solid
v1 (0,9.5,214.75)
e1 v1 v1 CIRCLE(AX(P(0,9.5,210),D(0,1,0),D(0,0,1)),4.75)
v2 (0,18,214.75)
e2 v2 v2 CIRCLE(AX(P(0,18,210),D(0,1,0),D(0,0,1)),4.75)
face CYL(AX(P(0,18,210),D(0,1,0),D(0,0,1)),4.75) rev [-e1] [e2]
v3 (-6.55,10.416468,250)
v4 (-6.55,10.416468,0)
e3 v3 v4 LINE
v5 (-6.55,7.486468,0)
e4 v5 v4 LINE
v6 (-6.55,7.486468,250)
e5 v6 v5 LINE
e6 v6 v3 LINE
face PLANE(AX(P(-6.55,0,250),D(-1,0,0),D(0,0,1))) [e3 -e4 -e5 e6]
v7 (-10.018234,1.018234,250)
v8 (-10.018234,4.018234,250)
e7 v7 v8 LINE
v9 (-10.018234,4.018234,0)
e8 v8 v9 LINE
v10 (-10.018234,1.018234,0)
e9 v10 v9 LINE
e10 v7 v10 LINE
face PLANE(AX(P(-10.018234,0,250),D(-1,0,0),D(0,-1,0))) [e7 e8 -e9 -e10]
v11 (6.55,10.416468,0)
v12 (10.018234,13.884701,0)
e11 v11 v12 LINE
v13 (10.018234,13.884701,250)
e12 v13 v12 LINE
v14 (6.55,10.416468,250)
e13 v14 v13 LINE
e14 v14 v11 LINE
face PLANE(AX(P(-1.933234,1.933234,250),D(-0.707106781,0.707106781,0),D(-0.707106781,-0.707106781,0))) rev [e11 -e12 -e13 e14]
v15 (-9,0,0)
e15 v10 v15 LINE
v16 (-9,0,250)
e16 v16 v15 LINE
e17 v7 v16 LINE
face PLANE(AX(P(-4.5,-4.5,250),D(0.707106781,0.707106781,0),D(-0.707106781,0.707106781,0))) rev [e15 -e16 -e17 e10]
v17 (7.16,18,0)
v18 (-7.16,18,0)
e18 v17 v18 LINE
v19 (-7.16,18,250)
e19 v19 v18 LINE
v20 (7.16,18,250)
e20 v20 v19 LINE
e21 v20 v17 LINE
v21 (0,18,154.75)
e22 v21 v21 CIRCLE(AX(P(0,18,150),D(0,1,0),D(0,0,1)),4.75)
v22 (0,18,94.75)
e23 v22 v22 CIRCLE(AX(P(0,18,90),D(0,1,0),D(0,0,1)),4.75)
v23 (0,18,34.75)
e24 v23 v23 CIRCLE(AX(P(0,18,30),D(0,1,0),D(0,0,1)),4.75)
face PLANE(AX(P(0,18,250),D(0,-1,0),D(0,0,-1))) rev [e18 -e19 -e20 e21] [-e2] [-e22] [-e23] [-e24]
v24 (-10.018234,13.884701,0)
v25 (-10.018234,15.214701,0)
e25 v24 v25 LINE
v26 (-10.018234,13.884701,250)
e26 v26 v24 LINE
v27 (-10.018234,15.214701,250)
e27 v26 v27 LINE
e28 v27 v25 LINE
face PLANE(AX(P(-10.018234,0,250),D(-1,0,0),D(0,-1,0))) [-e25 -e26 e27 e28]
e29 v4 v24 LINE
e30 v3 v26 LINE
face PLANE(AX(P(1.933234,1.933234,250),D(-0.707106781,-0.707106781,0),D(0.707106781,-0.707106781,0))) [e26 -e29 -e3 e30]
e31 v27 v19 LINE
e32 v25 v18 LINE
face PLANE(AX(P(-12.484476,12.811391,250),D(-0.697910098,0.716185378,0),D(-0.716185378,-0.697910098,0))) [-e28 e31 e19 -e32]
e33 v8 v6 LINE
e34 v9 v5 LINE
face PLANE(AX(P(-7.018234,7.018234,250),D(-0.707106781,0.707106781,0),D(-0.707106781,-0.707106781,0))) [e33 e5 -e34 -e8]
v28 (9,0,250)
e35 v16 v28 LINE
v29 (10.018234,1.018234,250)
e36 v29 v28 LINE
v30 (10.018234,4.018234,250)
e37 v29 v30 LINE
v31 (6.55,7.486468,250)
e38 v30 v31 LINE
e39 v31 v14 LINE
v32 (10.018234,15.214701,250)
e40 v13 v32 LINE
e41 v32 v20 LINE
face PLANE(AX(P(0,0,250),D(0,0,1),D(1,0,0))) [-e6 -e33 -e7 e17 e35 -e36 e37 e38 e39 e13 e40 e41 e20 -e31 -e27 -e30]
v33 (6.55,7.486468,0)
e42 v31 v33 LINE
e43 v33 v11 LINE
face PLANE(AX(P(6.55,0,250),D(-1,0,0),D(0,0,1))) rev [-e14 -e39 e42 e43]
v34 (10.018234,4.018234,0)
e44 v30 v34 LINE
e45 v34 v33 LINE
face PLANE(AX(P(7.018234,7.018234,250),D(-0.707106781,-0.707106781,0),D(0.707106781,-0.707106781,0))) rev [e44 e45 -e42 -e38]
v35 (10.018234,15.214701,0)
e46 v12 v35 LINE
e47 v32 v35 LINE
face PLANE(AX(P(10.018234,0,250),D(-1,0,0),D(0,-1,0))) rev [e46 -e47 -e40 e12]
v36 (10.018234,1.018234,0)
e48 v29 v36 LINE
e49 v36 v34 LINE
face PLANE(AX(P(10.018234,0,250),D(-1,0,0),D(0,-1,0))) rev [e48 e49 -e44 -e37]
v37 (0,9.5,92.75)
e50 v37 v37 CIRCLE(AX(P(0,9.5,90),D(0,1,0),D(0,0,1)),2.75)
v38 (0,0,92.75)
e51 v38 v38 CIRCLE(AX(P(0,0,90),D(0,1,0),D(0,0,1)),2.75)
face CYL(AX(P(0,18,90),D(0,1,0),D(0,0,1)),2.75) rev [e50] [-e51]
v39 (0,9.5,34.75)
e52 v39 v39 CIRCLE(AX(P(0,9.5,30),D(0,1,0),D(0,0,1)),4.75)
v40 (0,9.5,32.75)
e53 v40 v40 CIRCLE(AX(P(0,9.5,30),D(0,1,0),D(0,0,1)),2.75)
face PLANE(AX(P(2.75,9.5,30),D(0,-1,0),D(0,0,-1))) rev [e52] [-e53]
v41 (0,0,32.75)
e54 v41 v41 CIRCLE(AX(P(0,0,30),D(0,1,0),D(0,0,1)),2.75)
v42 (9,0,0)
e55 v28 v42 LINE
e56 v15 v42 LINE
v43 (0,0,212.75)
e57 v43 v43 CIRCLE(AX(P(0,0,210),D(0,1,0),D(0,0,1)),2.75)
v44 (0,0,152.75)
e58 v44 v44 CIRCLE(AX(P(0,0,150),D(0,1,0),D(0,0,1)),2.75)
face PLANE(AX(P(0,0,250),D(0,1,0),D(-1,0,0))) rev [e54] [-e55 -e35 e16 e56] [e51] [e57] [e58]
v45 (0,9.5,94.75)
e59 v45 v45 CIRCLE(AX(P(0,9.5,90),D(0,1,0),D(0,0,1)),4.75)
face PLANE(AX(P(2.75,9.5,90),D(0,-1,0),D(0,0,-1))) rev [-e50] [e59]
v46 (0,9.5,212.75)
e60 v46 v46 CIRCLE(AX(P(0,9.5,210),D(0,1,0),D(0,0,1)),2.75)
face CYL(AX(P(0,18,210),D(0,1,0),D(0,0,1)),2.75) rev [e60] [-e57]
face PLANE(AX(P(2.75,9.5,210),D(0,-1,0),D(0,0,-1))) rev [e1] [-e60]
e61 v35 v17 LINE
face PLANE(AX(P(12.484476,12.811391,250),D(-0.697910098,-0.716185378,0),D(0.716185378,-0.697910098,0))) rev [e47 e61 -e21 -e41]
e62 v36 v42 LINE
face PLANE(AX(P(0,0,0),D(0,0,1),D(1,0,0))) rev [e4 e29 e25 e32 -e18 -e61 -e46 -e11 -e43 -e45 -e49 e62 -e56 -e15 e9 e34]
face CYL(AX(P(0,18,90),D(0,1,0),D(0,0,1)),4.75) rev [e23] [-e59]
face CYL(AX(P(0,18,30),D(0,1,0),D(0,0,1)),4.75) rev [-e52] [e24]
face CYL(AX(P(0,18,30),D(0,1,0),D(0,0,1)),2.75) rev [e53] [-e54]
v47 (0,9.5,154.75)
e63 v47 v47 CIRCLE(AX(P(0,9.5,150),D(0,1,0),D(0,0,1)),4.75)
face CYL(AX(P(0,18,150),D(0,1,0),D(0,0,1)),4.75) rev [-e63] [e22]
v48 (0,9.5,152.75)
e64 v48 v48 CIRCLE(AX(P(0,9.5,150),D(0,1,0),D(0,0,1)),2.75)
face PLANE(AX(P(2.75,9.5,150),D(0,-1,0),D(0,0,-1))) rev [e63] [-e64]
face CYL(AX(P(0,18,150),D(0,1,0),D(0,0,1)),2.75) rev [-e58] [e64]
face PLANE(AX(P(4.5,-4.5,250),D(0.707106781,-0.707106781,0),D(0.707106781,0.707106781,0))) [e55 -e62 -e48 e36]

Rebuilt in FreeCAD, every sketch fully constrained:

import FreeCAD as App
import Part
import Sketcher

V = App.Vector
Q = App.Units.Quantity

doc = App.newDocument("Part")
body = doc.addObject("PartDesign::Body", "Body")

sketch1 = body.newObject("Sketcher::SketchObject", "Sketch")
sketch1.AttachmentSupport = (doc.getObject("XY_Plane"), [""])
sketch1.MapMode = "FlatFace"
sketch1.addGeometry([
    Part.LineSegment(V(9, 0, 0), V(10, 1, 0)),
    Part.LineSegment(V(10, 1, 0), V(10, 4, 0)),
    Part.LineSegment(V(10, 4, 0), V(6.5, 7.5, 0)),
    Part.LineSegment(V(6.5, 7.5, 0), V(6.5, 10.4, 0)),
    Part.LineSegment(V(6.5, 10.4, 0), V(10, 13.9, 0)),
    Part.LineSegment(V(10, 13.9, 0), V(10, 15.2, 0)),
    Part.LineSegment(V(10, 15.2, 0), V(7.2, 18, 0)),
    Part.LineSegment(V(7.2, 18, 0), V(-7.2, 18, 0)),
    Part.LineSegment(V(-7.2, 18, 0), V(-10, 15.2, 0)),
    Part.LineSegment(V(-10, 15.2, 0), V(-10, 13.9, 0)),
    Part.LineSegment(V(-10, 13.9, 0), V(-6.5, 10.4, 0)),
    Part.LineSegment(V(-6.5, 10.4, 0), V(-6.5, 7.5, 0)),
    Part.LineSegment(V(-6.5, 7.5, 0), V(-10, 4, 0)),
    Part.LineSegment(V(-10, 4, 0), V(-10, 1, 0)),
    Part.LineSegment(V(-10, 1, 0), V(-9, 0, 0)),
    Part.LineSegment(V(-9, 0, 0), V(9, 0, 0)),
], False)
sketch1.addConstraint([
    Sketcher.Constraint("Coincident", 0, 2, 1, 1),
    Sketcher.Constraint("Coincident", 1, 2, 2, 1),
    Sketcher.Constraint("Coincident", 2, 2, 3, 1),
    Sketcher.Constraint("Coincident", 3, 2, 4, 1),
    Sketcher.Constraint("Coincident", 4, 2, 5, 1),
    Sketcher.Constraint("Coincident", 5, 2, 6, 1),
    Sketcher.Constraint("Coincident", 6, 2, 7, 1),
    Sketcher.Constraint("Coincident", 7, 2, 8, 1),
    Sketcher.Constraint("Coincident", 8, 2, 9, 1),
    Sketcher.Constraint("Coincident", 9, 2, 10, 1),
    Sketcher.Constraint("Coincident", 10, 2, 11, 1),
    Sketcher.Constraint("Coincident", 11, 2, 12, 1),
    Sketcher.Constraint("Coincident", 12, 2, 13, 1),
    Sketcher.Constraint("Coincident", 13, 2, 14, 1),
    Sketcher.Constraint("Coincident", 14, 2, 15, 1),
    Sketcher.Constraint("Coincident", 15, 2, 0, 1),
    Sketcher.Constraint("Vertical", 1),
    Sketcher.Constraint("Vertical", 3),
    Sketcher.Constraint("Vertical", 5),
    Sketcher.Constraint("Horizontal", 7),
    Sketcher.Constraint("Vertical", 9),
    Sketcher.Constraint("Vertical", 11),
    Sketcher.Constraint("Vertical", 13),
    Sketcher.Constraint("Horizontal", 15),
    Sketcher.Constraint("Symmetric", 14, 2, 15, 2, -1, 1),
    Sketcher.Constraint("Symmetric", 5, 2, 8, 2, -2),
    Sketcher.Constraint("Symmetric", 3, 2, 10, 2, -2),
    Sketcher.Constraint("Symmetric", 1, 2, 12, 2, -2),
    Sketcher.Constraint("Perpendicular", 0, 2),
    Sketcher.Constraint("Perpendicular", 2, 4),
    Sketcher.Constraint("Perpendicular", 4, 10),
    Sketcher.Constraint("Perpendicular", 10, 12),
    Sketcher.Constraint("Perpendicular", 12, 14),
    Sketcher.Constraint("Horizontal", 4, 2, 9, 2),
    Sketcher.Constraint("Vertical", 1, 2, 4, 2),
    Sketcher.Constraint("Equal", 6, 8),
    Sketcher.Constraint("DistanceX", 15, 1, 15, 2, 18.0),
    Sketcher.Constraint("DistanceY", 1, 1, 1, 2, 3.0),
    Sketcher.Constraint("DistanceY", -1, 1, 6, 2, 18.0),
    Sketcher.Constraint("DistanceX", 7, 2, 7, 1, 14.32),
    Sketcher.Constraint("DistanceY", 3, 1, 3, 2, 2.93),
    Sketcher.Constraint("DistanceY", 5, 1, 5, 2, 1.33),
    Sketcher.Constraint("DistanceX", 10, 2, 3, 2, 13.1),
    Sketcher.Constraint("Distance", 0, 1.44),
])
pad1 = body.newObject("PartDesign::Pad", "Pad")
pad1.Profile = sketch1
pad1.Length = 250

sketch2 = body.newObject("Sketcher::SketchObject", "Sketch001")
sketch2.AttachmentSupport = (doc.getObject("YZ_Plane"), [""])
sketch2.MapMode = "FlatFace"
sketch2.addGeometry([
    Part.LineSegment(V(-1.7, 30, 0), V(18, 30, 0)),
    Part.LineSegment(V(18, 30, 0), V(18, 34.8, 0)),
    Part.LineSegment(V(18, 34.8, 0), V(9.5, 34.8, 0)),
    Part.LineSegment(V(9.5, 34.8, 0), V(9.5, 32.8, 0)),
    Part.LineSegment(V(9.5, 32.8, 0), V(0, 32.8, 0)),
    Part.LineSegment(V(0, 32.8, 0), V(-1.7, 30, 0)),
], False)
sketch2.addGeometry(Part.LineSegment(V(18, 30, 0), V(-1.7, 30, 0)), True)
sketch2.addConstraint([
    Sketcher.Constraint("Coincident", 0, 2, 1, 1),
    Sketcher.Constraint("Coincident", 1, 2, 2, 1),
    Sketcher.Constraint("Coincident", 2, 2, 3, 1),
    Sketcher.Constraint("Coincident", 3, 2, 4, 1),
    Sketcher.Constraint("Coincident", 4, 2, 5, 1),
    Sketcher.Constraint("Coincident", 5, 2, 0, 1),
    Sketcher.Constraint("Horizontal", 0),
    Sketcher.Constraint("Vertical", 1),
    Sketcher.Constraint("Horizontal", 2),
    Sketcher.Constraint("Vertical", 3),
    Sketcher.Constraint("Horizontal", 4),
    Sketcher.Constraint("Horizontal", 6),
    Sketcher.Constraint("Coincident", 6, 1, 0, 2),
    Sketcher.Constraint("PointOnObject", 4, 2, -2),
    Sketcher.Constraint("Equal", 0, 6),
    Sketcher.Constraint("DistanceY", 3, 2, 3, 1, 2.0),
    Sketcher.Constraint("Angle", 5, Q("-121 deg")),
    Sketcher.Constraint("DistanceX", 2, 2, 2, 1, 8.5),
    Sketcher.Constraint("DistanceX", 4, 2, 4, 1, 9.5),
    Sketcher.Constraint("DistanceY", -1, 1, 0, 2, 30.0),
    Sketcher.Constraint("DistanceY", 1, 1, 1, 2, 4.75),
])
groove = body.newObject("PartDesign::Groove", "Groove")
groove.Profile = sketch2
groove.ReferenceAxis = (sketch2, ["Axis0"])
groove.Angle = 360
doc.recompute()

linearpattern = body.newObject("PartDesign::LinearPattern", "LinearPattern")
linearpattern.Originals = [groove]
linearpattern.Direction = (doc.getObject("Z_Axis"), [""])
linearpattern.Mode = "offset"
linearpattern.Offset = 60
linearpattern.Occurrences = 4
body.Tip = linearpattern

doc.recompute()
